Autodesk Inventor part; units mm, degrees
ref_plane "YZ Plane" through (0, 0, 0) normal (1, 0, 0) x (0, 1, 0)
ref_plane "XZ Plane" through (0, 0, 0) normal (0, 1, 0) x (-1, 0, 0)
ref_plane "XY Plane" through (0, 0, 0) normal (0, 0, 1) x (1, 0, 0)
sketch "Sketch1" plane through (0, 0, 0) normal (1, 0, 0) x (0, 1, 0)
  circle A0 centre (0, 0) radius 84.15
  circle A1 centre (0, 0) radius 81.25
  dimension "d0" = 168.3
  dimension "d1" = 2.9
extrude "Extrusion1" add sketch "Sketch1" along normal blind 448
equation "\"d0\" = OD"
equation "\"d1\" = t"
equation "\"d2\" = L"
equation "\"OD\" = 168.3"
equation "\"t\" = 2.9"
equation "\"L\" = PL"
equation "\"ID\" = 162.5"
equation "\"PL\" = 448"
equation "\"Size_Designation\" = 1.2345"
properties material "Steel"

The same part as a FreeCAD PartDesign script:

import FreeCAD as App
import Part
import Sketcher

V = App.Vector
Q = App.Units.Quantity

doc = App.newDocument("Part")
body = doc.addObject("PartDesign::Body", "Body")

sketch1 = body.newObject("Sketcher::SketchObject", "Sketch")
sketch1.AttachmentSupport = (doc.getObject("YZ_Plane"), [""])
sketch1.MapMode = "FlatFace"
sketch1.addGeometry(Part.Circle(V(0, 0, 0), V(0, 0, 1), 84), False)
sketch1.addGeometry(Part.Circle(V(0, 0, 0), V(0, 0, 1), 81), False)
sketch1.addConstraint(Sketcher.Constraint("Coincident", 0, 3, -1, 1))
sketch1.addConstraint(Sketcher.Constraint("Coincident", 1, 3, -1, 1))
sketch1.addConstraint(Sketcher.Constraint("Diameter", 0, Q("168.3 mm")))
sketch1.addConstraint(Sketcher.Constraint("Diameter", 1, Q("162.5 mm")))
pad1 = body.newObject("PartDesign::Pad", "Pad")
pad1.Profile = sketch1
pad1.Length = 448

doc.recompute()
